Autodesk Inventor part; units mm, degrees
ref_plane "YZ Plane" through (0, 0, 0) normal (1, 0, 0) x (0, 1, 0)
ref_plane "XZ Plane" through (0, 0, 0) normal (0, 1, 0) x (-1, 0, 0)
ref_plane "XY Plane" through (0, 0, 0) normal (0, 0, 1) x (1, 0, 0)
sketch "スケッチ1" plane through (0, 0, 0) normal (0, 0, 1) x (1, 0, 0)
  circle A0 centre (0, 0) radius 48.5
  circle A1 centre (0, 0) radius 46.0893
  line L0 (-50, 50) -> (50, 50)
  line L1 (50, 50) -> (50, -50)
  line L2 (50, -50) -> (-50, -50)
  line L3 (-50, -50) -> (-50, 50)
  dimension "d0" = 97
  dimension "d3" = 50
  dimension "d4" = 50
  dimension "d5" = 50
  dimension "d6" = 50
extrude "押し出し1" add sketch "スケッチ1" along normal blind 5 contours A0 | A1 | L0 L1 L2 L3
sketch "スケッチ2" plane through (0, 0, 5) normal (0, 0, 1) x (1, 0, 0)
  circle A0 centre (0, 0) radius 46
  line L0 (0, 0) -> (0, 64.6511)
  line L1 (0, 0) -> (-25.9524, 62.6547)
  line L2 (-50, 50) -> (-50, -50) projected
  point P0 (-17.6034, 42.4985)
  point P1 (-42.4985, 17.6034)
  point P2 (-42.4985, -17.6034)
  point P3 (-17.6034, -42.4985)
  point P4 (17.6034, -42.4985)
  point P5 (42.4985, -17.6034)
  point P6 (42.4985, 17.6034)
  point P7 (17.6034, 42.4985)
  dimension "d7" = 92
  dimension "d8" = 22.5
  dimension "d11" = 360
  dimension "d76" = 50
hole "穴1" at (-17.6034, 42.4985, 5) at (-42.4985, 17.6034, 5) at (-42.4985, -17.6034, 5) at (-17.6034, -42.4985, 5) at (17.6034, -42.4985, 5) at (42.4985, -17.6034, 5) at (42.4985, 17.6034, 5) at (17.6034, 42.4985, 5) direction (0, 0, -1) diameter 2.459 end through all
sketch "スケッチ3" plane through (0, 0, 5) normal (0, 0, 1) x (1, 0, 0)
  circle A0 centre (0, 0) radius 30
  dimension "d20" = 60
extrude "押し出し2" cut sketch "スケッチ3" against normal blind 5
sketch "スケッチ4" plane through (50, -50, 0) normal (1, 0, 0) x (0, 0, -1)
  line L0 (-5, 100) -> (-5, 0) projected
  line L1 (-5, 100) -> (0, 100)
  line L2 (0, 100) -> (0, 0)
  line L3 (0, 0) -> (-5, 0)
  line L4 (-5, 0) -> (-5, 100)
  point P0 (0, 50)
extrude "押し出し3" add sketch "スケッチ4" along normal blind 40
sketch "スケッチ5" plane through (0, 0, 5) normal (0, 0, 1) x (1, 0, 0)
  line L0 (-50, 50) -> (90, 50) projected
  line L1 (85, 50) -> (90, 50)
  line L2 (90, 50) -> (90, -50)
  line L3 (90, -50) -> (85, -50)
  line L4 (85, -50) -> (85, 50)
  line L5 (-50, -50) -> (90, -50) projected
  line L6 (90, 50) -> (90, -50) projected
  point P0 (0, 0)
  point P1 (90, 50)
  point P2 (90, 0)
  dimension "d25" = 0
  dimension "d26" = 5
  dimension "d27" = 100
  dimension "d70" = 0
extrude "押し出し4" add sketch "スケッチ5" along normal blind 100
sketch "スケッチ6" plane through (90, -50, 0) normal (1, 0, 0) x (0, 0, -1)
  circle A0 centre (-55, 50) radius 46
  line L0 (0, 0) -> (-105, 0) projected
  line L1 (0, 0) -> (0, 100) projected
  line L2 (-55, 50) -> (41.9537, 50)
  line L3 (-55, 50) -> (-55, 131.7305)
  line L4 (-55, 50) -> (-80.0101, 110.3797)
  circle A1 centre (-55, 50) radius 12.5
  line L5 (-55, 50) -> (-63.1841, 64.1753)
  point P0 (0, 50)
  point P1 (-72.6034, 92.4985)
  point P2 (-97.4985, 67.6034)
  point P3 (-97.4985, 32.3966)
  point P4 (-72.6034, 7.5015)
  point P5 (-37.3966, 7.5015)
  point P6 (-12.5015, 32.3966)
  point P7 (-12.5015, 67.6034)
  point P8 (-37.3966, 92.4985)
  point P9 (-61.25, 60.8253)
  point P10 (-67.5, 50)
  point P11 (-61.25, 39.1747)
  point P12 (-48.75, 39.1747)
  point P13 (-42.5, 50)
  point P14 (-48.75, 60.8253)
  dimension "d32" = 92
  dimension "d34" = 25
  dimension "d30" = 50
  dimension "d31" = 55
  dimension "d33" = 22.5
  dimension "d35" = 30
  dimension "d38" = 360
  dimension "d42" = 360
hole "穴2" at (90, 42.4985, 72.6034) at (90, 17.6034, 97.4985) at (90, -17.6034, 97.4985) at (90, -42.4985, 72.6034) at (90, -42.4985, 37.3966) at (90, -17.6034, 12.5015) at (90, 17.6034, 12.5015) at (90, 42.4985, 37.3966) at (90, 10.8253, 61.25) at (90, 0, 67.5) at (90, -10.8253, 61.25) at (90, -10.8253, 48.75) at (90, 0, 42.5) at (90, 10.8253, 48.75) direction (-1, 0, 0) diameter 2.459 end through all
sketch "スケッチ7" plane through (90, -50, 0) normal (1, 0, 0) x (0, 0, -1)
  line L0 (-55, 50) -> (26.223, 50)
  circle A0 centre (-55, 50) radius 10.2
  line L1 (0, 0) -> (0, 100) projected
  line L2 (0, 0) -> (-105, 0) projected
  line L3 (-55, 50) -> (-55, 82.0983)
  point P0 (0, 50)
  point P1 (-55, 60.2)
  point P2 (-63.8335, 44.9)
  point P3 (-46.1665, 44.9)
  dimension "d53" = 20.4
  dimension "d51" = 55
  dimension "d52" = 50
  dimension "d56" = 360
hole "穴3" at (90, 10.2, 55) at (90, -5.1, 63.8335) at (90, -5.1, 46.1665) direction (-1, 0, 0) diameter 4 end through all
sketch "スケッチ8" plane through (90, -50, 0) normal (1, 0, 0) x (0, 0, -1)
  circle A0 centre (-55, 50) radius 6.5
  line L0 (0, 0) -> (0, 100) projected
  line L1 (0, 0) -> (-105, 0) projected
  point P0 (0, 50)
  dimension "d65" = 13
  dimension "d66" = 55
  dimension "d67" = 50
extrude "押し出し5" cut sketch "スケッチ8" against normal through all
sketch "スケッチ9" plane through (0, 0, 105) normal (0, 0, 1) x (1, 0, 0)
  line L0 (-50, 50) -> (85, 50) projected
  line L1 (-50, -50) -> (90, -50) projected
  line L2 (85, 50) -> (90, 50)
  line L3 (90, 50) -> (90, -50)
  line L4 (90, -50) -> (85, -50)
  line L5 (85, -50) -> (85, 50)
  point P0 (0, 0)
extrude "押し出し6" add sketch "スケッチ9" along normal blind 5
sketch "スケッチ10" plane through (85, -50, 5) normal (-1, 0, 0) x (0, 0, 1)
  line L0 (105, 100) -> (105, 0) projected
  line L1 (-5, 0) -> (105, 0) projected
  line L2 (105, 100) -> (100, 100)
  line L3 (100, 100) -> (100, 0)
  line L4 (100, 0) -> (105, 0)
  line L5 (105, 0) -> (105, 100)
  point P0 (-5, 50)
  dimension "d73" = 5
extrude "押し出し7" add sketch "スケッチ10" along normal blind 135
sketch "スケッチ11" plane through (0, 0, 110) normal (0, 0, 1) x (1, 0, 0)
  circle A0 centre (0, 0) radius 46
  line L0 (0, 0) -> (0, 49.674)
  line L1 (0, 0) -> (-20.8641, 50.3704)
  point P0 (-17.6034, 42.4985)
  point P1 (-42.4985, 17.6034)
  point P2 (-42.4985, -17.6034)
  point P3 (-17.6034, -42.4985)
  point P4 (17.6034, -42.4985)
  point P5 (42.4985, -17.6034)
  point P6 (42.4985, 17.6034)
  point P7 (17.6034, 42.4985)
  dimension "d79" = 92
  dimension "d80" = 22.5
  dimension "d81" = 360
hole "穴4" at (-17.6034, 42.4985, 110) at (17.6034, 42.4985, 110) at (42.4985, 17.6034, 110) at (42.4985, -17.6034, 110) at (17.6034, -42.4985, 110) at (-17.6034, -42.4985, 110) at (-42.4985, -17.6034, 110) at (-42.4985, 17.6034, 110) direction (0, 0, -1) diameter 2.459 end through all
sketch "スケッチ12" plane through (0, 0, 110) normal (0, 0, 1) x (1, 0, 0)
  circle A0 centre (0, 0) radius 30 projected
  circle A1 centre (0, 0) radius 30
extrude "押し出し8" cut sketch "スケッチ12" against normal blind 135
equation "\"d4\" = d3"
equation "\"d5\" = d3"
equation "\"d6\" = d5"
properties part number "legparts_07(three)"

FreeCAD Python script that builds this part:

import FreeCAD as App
import Part
import Sketcher
from FreeCAD import Vector


def add_polygon(sketch, points):
    """Adds a closed chain of lines whose ends are joined by coincident constraints."""
    first, n = sketch.GeometryCount, len(points)
    for a, b in zip(points, points[1:] + points[:1]):
        sketch.addGeometry(Part.LineSegment(App.Vector(*a, 0), App.Vector(*b, 0)), False)
    for i in range(n):
        sketch.addConstraint(Sketcher.Constraint("Coincident", first + i, 2, first + (i + 1) % n, 1))

doc = App.newDocument("Part")
body = doc.addObject("PartDesign::Body", "Body")

# Sketch on XY plane
sketch1 = doc.addObject("Sketcher::SketchObject", "Sketch")
body.addObject(sketch1)
sketch1.AttachmentSupport = (doc.XY_Plane, [""])
sketch1.MapMode = "FlatFace"
add_polygon(sketch1, [(50, 50), (-50, 50), (-50, -50), (50, -50)])  # lines 0-3
sketch1.addConstraint(Sketcher.Constraint("Horizontal", 0))
sketch1.addConstraint(Sketcher.Constraint("Vertical", 1))
sketch1.addConstraint(Sketcher.Constraint("Horizontal", 2))
sketch1.addConstraint(Sketcher.Constraint("Vertical", 3))
sketch1.addConstraint(Sketcher.Constraint("Symmetric", 0, 2, 2, 2, -1, 1))
sketch1.addConstraint(Sketcher.Constraint("Equal", 2, 1))
sketch1.addConstraint(Sketcher.Constraint("DistanceX", 0, 2, -1, 1, 50.0))
pad1 = doc.addObject("PartDesign::Pad", "Pad")
body.addObject(pad1)
pad1.Profile = sketch1
pad1.Length = 5

# Sketch on XY plane
sketch2 = doc.addObject("Sketcher::SketchObject", "Sketch001")
body.addObject(sketch2)
sketch2.AttachmentSupport = (doc.XY_Plane, [""])
sketch2.MapMode = "FlatFace"
sketch2.AttachmentOffset = App.Placement(Vector(0, 0, 5), App.Rotation())
sketch2.addGeometry(Part.Circle(Vector(-17.6034, 42.4985, 0), Vector(0, 0, 1), 1.2295), False)
sketch2.addGeometry(Part.Circle(Vector(-42.4985, 17.6034, 0), Vector(0, 0, 1), 1.2295), False)
sketch2.addGeometry(Part.Circle(Vector(-42.4985, -17.6034, 0), Vector(0, 0, 1), 1.2295), False)
sketch2.addGeometry(Part.Circle(Vector(-17.6034, -42.4985, 0), Vector(0, 0, 1), 1.2295), False)
sketch2.addGeometry(Part.Circle(Vector(17.6034, -42.4985, 0), Vector(0, 0, 1), 1.2295), False)
sketch2.addGeometry(Part.Circle(Vector(42.4985, -17.6034, 0), Vector(0, 0, 1), 1.2295), False)
sketch2.addGeometry(Part.Circle(Vector(42.4985, 17.6034, 0), Vector(0, 0, 1), 1.2295), False)
sketch2.addGeometry(Part.Circle(Vector(17.6034, 42.4985, 0), Vector(0, 0, 1), 1.2295), False)
sketch2.addConstraint(Sketcher.Constraint("Equal", 0, 1))
sketch2.addConstraint(Sketcher.Constraint("Equal", 1, 2))
sketch2.addConstraint(Sketcher.Constraint("Equal", 2, 3))
sketch2.addConstraint(Sketcher.Constraint("Equal", 3, 4))
sketch2.addConstraint(Sketcher.Constraint("Equal", 4, 5))
sketch2.addConstraint(Sketcher.Constraint("Equal", 5, 6))
sketch2.addConstraint(Sketcher.Constraint("Equal", 6, 7))
sketch2.addConstraint(Sketcher.Constraint("Symmetric", 0, 3, 4, 3, -1, 1))
sketch2.addConstraint(Sketcher.Constraint("Symmetric", 1, 3, 5, 3, -1, 1))
sketch2.addConstraint(Sketcher.Constraint("Symmetric", 2, 3, 6, 3, -1, 1))
sketch2.addConstraint(Sketcher.Constraint("Symmetric", 3, 3, 7, 3, -1, 1))
sketch2.addConstraint(Sketcher.Constraint("Symmetric", 3, 3, 4, 3, -2))
sketch2.addConstraint(Sketcher.Constraint("Symmetric", 2, 3, 5, 3, -2))
sketch2.addConstraint(Sketcher.Constraint("Diameter", 0, 2.459))
sketch2.addConstraint(Sketcher.Constraint("DistanceX", 1, 3, 0, 3, 24.895))
sketch2.addConstraint(Sketcher.Constraint("DistanceY", 1, 3, 0, 3, 24.895))
sketch2.addConstraint(Sketcher.Constraint("DistanceY", 2, 3, 0, 3, 60.102))
sketch2.addConstraint(Sketcher.Constraint("DistanceX", 2, 3, 4, 3, 60.102))
doc.recompute()
hole = doc.addObject("PartDesign::Hole", "Hole")
body.addObject(hole)
hole.Profile = sketch2
hole.ThreadType = "None"
hole.Diameter = 2.459
hole.DepthType = "ThroughAll"

# Sketch on XY plane
sketch3 = doc.addObject("Sketcher::SketchObject", "Sketch002")
body.addObject(sketch3)
sketch3.AttachmentSupport = (doc.XY_Plane, [""])
sketch3.MapMode = "FlatFace"
sketch3.AttachmentOffset = App.Placement(Vector(0, 0, 5), App.Rotation())
sketch3.addGeometry(Part.Circle(Vector(0, 0, 0), Vector(0, 0, 1), 30), False)
sketch3.addConstraint(Sketcher.Constraint("Coincident", 0, 3, -1, 1))
sketch3.addConstraint(Sketcher.Constraint("Diameter", 0, 60.0))
pocket1 = doc.addObject("PartDesign::Pocket", "Pocket")
body.addObject(pocket1)
pocket1.Profile = sketch3
pocket1.Length = 5

# Sketch on YZ plane
sketch4 = doc.addObject("Sketcher::SketchObject", "Sketch003")
body.addObject(sketch4)
sketch4.AttachmentSupport = (doc.YZ_Plane, [""])
sketch4.MapMode = "FlatFace"
sketch4.AttachmentOffset = App.Placement(Vector(0, 0, 50), App.Rotation())
add_polygon(sketch4, [(50, 0), (50, 5), (-50, 5), (-50, 0)])  # lines 0-3
sketch4.addConstraint(Sketcher.Constraint("Vertical", 0))
sketch4.addConstraint(Sketcher.Constraint("Horizontal", 1))
sketch4.addConstraint(Sketcher.Constraint("Vertical", 2))
sketch4.addConstraint(Sketcher.Constraint("Horizontal", 3))
sketch4.addConstraint(Sketcher.Constraint("Symmetric", 2, 2, 3, 2, -1, 1))
sketch4.addConstraint(Sketcher.Constraint("DistanceX", 1, 2, 1, 1, 100.0))
sketch4.addConstraint(Sketcher.Constraint("DistanceY", 0, 1, 0, 2, 5.0))
pad2 = doc.addObject("PartDesign::Pad", "Pad001")
body.addObject(pad2)
pad2.Profile = sketch4
pad2.Length = 40

# Sketch on XY plane
sketch5 = doc.addObject("Sketcher::SketchObject", "Sketch004")
body.addObject(sketch5)
sketch5.AttachmentSupport = (doc.XY_Plane, [""])
sketch5.MapMode = "FlatFace"
sketch5.AttachmentOffset = App.Placement(Vector(0, 0, 5), App.Rotation())
add_polygon(sketch5, [(90, 50), (85, 50), (85, -50), (90, -50)])  # lines 0-3
sketch5.addConstraint(Sketcher.Constraint("Horizontal", 0))
sketch5.addConstraint(Sketcher.Constraint("Vertical", 1))
sketch5.addConstraint(Sketcher.Constraint("Horizontal", 2))
sketch5.addConstraint(Sketcher.Constraint("Vertical", 3))
sketch5.addConstraint(Sketcher.Constraint("DistanceX", 0, 2, 0, 1, 5.0))
sketch5.addConstraint(Sketcher.Constraint("DistanceY", 1, 2, 1, 1, 100.0))
sketch5.addConstraint(Sketcher.Constraint("DistanceX", -1, 1, 0, 2, 85.0))
sketch5.addConstraint(Sketcher.Constraint("DistanceY", -1, 1, 0, 2, 50.0))
pad3 = doc.addObject("PartDesign::Pad", "Pad002")
body.addObject(pad3)
pad3.Profile = sketch5
pad3.Length = 100

# Sketch on YZ plane
sketch6 = doc.addObject("Sketcher::SketchObject", "Sketch005")
body.addObject(sketch6)
sketch6.AttachmentSupport = (doc.YZ_Plane, [""])
sketch6.MapMode = "FlatFace"
sketch6.AttachmentOffset = App.Placement(Vector(0, 0, 90), App.Rotation())
sketch6.addGeometry(Part.Circle(Vector(42.4985, 72.6034, 0), Vector(0, 0, 1), 1.2295), False)
sketch6.addGeometry(Part.Circle(Vector(17.6034, 97.4985, 0), Vector(0, 0, 1), 1.2295), False)
sketch6.addGeometry(Part.Circle(Vector(-17.6034, 97.4985, 0), Vector(0, 0, 1), 1.2295), False)
sketch6.addGeometry(Part.Circle(Vector(-42.4985, 72.6034, 0), Vector(0, 0, 1), 1.2295), False)
sketch6.addGeometry(Part.Circle(Vector(-42.4985, 37.3966, 0), Vector(0, 0, 1), 1.2295), False)
sketch6.addGeometry(Part.Circle(Vector(-17.6034, 12.5015, 0), Vector(0, 0, 1), 1.2295), False)
sketch6.addGeometry(Part.Circle(Vector(17.6034, 12.5015, 0), Vector(0, 0, 1), 1.2295), False)
sketch6.addGeometry(Part.Circle(Vector(42.4985, 37.3966, 0), Vector(0, 0, 1), 1.2295), False)
sketch6.addGeometry(Part.Circle(Vector(10.8253, 61.25, 0), Vector(0, 0, 1), 1.2295), False)
sketch6.addGeometry(Part.Circle(Vector(0, 67.5, 0), Vector(0, 0, 1), 1.2295), False)
sketch6.addGeometry(Part.Circle(Vector(-10.8253, 61.25, 0), Vector(0, 0, 1), 1.2295), False)
sketch6.addGeometry(Part.Circle(Vector(-10.8253, 48.75, 0), Vector(0, 0, 1), 1.2295), False)
sketch6.addGeometry(Part.Circle(Vector(0, 42.5, 0), Vector(0, 0, 1), 1.2295), False)
sketch6.addGeometry(Part.Circle(Vector(10.8253, 48.75, 0), Vector(0, 0, 1), 1.2295), False)
sketch6.addConstraint(Sketcher.Constraint("Equal", 0, 1))
sketch6.addConstraint(Sketcher.Constraint("Equal", 1, 2))
sketch6.addConstraint(Sketcher.Constraint("Equal", 2, 3))
sketch6.addConstraint(Sketcher.Constraint("Equal", 3, 4))
sketch6.addConstraint(Sketcher.Constraint("Equal", 4, 5))
sketch6.addConstraint(Sketcher.Constraint("Equal", 5, 6))
sketch6.addConstraint(Sketcher.Constraint("Equal", 6, 7))
sketch6.addConstraint(Sketcher.Constraint("Equal", 7, 8))
sketch6.addConstraint(Sketcher.Constraint("Equal", 8, 9))
sketch6.addConstraint(Sketcher.Constraint("Equal", 9, 10))
sketch6.addConstraint(Sketcher.Constraint("Equal", 10, 11))
sketch6.addConstraint(Sketcher.Constraint("Equal", 11, 12))
sketch6.addConstraint(Sketcher.Constraint("Equal", 12, 13))
sketch6.addConstraint(Sketcher.Constraint("Symmetric", 1, 3, 2, 3, -2))
sketch6.addConstraint(Sketcher.Constraint("Symmetric", 0, 3, 3, 3, -2))
sketch6.addConstraint(Sketcher.Constraint("Symmetric", 5, 3, 6, 3, -2))
sketch6.addConstraint(Sketcher.Constraint("Symmetric", 4, 3, 7, 3, -2))
sketch6.addConstraint(Sketcher.Constraint("Symmetric", 8, 3, 10, 3, -2))
sketch6.addConstraint(Sketcher.Constraint("Symmetric", 11, 3, 13, 3, -2))
sketch6.addConstraint(Sketcher.Constraint("PointOnObject", 9, 3, -2))
sketch6.addConstraint(Sketcher.Constraint("PointOnObject", 12, 3, -2))
sketch6.addConstraint(Sketcher.Constraint("Vertical", 3, 3, 4, 3))
sketch6.addConstraint(Sketcher.Constraint("Vertical", 2, 3, 5, 3))
sketch6.addConstraint(Sketcher.Constraint("Vertical", 10, 3, 11, 3))
sketch6.addConstraint(Sketcher.Constraint("Diameter", 0, 2.459))
sketch6.addConstraint(Sketcher.Constraint("DistanceY", 12, 3, 9, 3, 25.0))
sketch6.addConstraint(Sketcher.Constraint("DistanceY", -1, 1, 9, 3, 67.5))
sketch6.addConstraint(Sketcher.Constraint("DistanceY", 11, 3, 10, 3, 12.5))
sketch6.addConstraint(Sketcher.Constraint("DistanceY", -1, 1, 8, 3, 61.25))
sketch6.addConstraint(Sketcher.Constraint("DistanceX", 1, 3, 0, 3, 24.895))
sketch6.addConstraint(Sketcher.Constraint("DistanceY", 0, 3, 1, 3, 24.895))
sketch6.addConstraint(Sketcher.Constraint("DistanceX", 2, 3, 0, 3, 60.102))
sketch6.addConstraint(Sketcher.Constraint("DistanceY", 4, 3, 2, 3, 60.102))
sketch6.addConstraint(Sketcher.Constraint("DistanceY", 5, 3, 4, 3, 24.895))
sketch6.addConstraint(Sketcher.Constraint("DistanceX", 8, 3, 1, 3, 6.778))
sketch6.addConstraint(Sketcher.Constraint("DistanceY", -1, 1, 0, 3, 72.6034))
doc.recompute()
hole2 = doc.addObject("PartDesign::Hole", "Hole001")
body.addObject(hole2)
hole2.Profile = sketch6
hole2.ThreadType = "None"
hole2.Diameter = 2.459
hole2.DepthType = "ThroughAll"

# Sketch on YZ plane
sketch7 = doc.addObject("Sketcher::SketchObject", "Sketch006")
body.addObject(sketch7)
sketch7.AttachmentSupport = (doc.YZ_Plane, [""])
sketch7.MapMode = "FlatFace"
sketch7.AttachmentOffset = App.Placement(Vector(0, 0, 90), App.Rotation())
sketch7.addGeometry(Part.Circle(Vector(10.2, 55, 0), Vector(0, 0, 1), 2), False)
sketch7.addGeometry(Part.Circle(Vector(-5.1, 63.8335, 0), Vector(0, 0, 1), 2), False)
sketch7.addGeometry(Part.Circle(Vector(-5.1, 46.1665, 0), Vector(0, 0, 1), 2), False)
sketch7.addConstraint(Sketcher.Constraint("Equal", 0, 1))
sketch7.addConstraint(Sketcher.Constraint("Equal", 1, 2))
sketch7.addConstraint(Sketcher.Constraint("Vertical", 1, 3, 2, 3))
sketch7.addConstraint(Sketcher.Constraint("Diameter", 0, 4.0))
sketch7.addConstraint(Sketcher.Constraint("DistanceY", -1, 1, 0, 3, 55.0))
sketch7.addConstraint(Sketcher.Constraint("DistanceX", -1, 1, 0, 3, 10.2))
sketch7.addConstraint(Sketcher.Constraint("DistanceX", 1, 3, -1, 1, 5.1))
sketch7.addConstraint(Sketcher.Constraint("DistanceY", 2, 3, 1, 3, 17.667))
sketch7.addConstraint(Sketcher.Constraint("DistanceY", -1, 1, 1, 3, 63.8335))
doc.recompute()
hole3 = doc.addObject("PartDesign::Hole", "Hole002")
body.addObject(hole3)
hole3.Profile = sketch7
hole3.ThreadType = "None"
hole3.Diameter = 4
hole3.DepthType = "ThroughAll"

# Sketch on YZ plane
sketch8 = doc.addObject("Sketcher::SketchObject", "Sketch007")
body.addObject(sketch8)
sketch8.AttachmentSupport = (doc.YZ_Plane, [""])
sketch8.MapMode = "FlatFace"
sketch8.AttachmentOffset = App.Placement(Vector(0, 0, 90), App.Rotation())
sketch8.addGeometry(Part.Circle(Vector(0, 55, 0), Vector(0, 0, 1), 6.5), False)
sketch8.addConstraint(Sketcher.Constraint("PointOnObject", 0, 3, -2))
sketch8.addConstraint(Sketcher.Constraint("Diameter", 0, 13.0))
sketch8.addConstraint(Sketcher.Constraint("DistanceY", -1, 1, 0, 3, 55.0))
pocket2 = doc.addObject("PartDesign::Pocket", "Pocket001")
body.addObject(pocket2)
pocket2.Profile = sketch8
pocket2.Type = "ThroughAll"

# Sketch on XY plane
sketch9 = doc.addObject("Sketcher::SketchObject", "Sketch008")
body.addObject(sketch9)
sketch9.AttachmentSupport = (doc.XY_Plane, [""])
sketch9.MapMode = "FlatFace"
sketch9.AttachmentOffset = App.Placement(Vector(0, 0, 105), App.Rotation())
add_polygon(sketch9, [(85, 50), (85, -50), (90, -50), (90, 50)])  # lines 0-3
sketch9.addConstraint(Sketcher.Constraint("Vertical", 0))
sketch9.addConstraint(Sketcher.Constraint("Horizontal", 1))
sketch9.addConstraint(Sketcher.Constraint("Vertical", 2))
sketch9.addConstraint(Sketcher.Constraint("Horizontal", 3))
sketch9.addConstraint(Sketcher.Constraint("DistanceX", 1, 1, 1, 2, 5.0))
sketch9.addConstraint(Sketcher.Constraint("DistanceY", 0, 2, 0, 1, 100.0))
sketch9.addConstraint(Sketcher.Constraint("DistanceX", -1, 1, 0, 2, 85.0))
sketch9.addConstraint(Sketcher.Constraint("DistanceY", 0, 2, -1, 1, 50.0))
pad4 = doc.addObject("PartDesign::Pad", "Pad003")
body.addObject(pad4)
pad4.Profile = sketch9
pad4.Length = 5

# Sketch on YZ plane
sketch10 = doc.addObject("Sketcher::SketchObject", "Sketch009")
body.addObject(sketch10)
sketch10.AttachmentSupport = (doc.YZ_Plane, [""])
sketch10.MapMode = "FlatFace"
sketch10.AttachmentOffset = App.Placement(Vector(0, 0, 85), App.Rotation())
add_polygon(sketch10, [(-50, 110), (50, 110), (50, 105), (-50, 105)])  # lines 0-3
sketch10.addConstraint(Sketcher.Constraint("Horizontal", 0))
sketch10.addConstraint(Sketcher.Constraint("Vertical", 1))
sketch10.addConstraint(Sketcher.Constraint("Horizontal", 2))
sketch10.addConstraint(Sketcher.Constraint("Vertical", 3))
sketch10.addConstraint(Sketcher.Constraint("DistanceY", 1, 2, 1, 1, 5.0))
sketch10.addConstraint(Sketcher.Constraint("DistanceX", 0, 1, 0, 2, 100.0))
sketch10.addConstraint(Sketcher.Constraint("DistanceX", -1, 1, 0, 2, 50.0))
sketch10.addConstraint(Sketcher.Constraint("DistanceY", -1, 1, 0, 2, 110.0))
pad5 = doc.addObject("PartDesign::Pad", "Pad004")
body.addObject(pad5)
pad5.Profile = sketch10
pad5.Length = 135
pad5.Reversed = True

# Sketch on XY plane
sketch11 = doc.addObject("Sketcher::SketchObject", "Sketch010")
body.addObject(sketch11)
sketch11.AttachmentSupport = (doc.XY_Plane, [""])
sketch11.MapMode = "FlatFace"
sketch11.AttachmentOffset = App.Placement(Vector(0, 0, 110), App.Rotation())
sketch11.addGeometry(Part.Circle(Vector(-17.6034, 42.4985, 0), Vector(0, 0, 1), 1.2295), False)
sketch11.addGeometry(Part.Circle(Vector(17.6034, 42.4985, 0), Vector(0, 0, 1), 1.2295), False)
sketch11.addGeometry(Part.Circle(Vector(42.4985, 17.6034, 0), Vector(0, 0, 1), 1.2295), False)
sketch11.addGeometry(Part.Circle(Vector(42.4985, -17.6034, 0), Vector(0, 0, 1), 1.2295), False)
sketch11.addGeometry(Part.Circle(Vector(17.6034, -42.4985, 0), Vector(0, 0, 1), 1.2295), False)
sketch11.addGeometry(Part.Circle(Vector(-17.6034, -42.4985, 0), Vector(0, 0, 1), 1.2295), False)
sketch11.addGeometry(Part.Circle(Vector(-42.4985, -17.6034, 0), Vector(0, 0, 1), 1.2295), False)
sketch11.addGeometry(Part.Circle(Vector(-42.4985, 17.6034, 0), Vector(0, 0, 1), 1.2295), False)
sketch11.addConstraint(Sketcher.Constraint("Equal", 0, 1))
sketch11.addConstraint(Sketcher.Constraint("Equal", 1, 2))
sketch11.addConstraint(Sketcher.Constraint("Equal", 2, 3))
sketch11.addConstraint(Sketcher.Constraint("Equal", 3, 4))
sketch11.addConstraint(Sketcher.Constraint("Equal", 4, 5))
sketch11.addConstraint(Sketcher.Constraint("Equal", 5, 6))
sketch11.addConstraint(Sketcher.Constraint("Equal", 6, 7))
sketch11.addConstraint(Sketcher.Constraint("Symmetric", 0, 3, 4, 3, -1, 1))
sketch11.addConstraint(Sketcher.Constraint("Symmetric", 1, 3, 5, 3, -1, 1))
sketch11.addConstraint(Sketcher.Constraint("Symmetric", 2, 3, 6, 3, -1, 1))
sketch11.addConstraint(Sketcher.Constraint("Symmetric", 3, 3, 7, 3, -1, 1))
sketch11.addConstraint(Sketcher.Constraint("Symmetric", 0, 3, 1, 3, -2))
sketch11.addConstraint(Sketcher.Constraint("Symmetric", 3, 3, 6, 3, -2))
sketch11.addConstraint(Sketcher.Constraint("Diameter", 0, 2.459))
sketch11.addConstraint(Sketcher.Constraint("DistanceX", 1, 3, 2, 3, 24.895))
sketch11.addConstraint(Sketcher.Constraint("DistanceY", 2, 3, 1, 3, 24.895))
sketch11.addConstraint(Sketcher.Constraint("DistanceX", 0, 3, 2, 3, 60.102))
sketch11.addConstraint(Sketcher.Constraint("DistanceY", 3, 3, 1, 3, 60.102))
doc.recompute()
hole4 = doc.addObject("PartDesign::Hole", "Hole003")
body.addObject(hole4)
hole4.Profile = sketch11
hole4.ThreadType = "None"
hole4.Diameter = 2.459
hole4.DepthType = "ThroughAll"

# Sketch on XY plane
sketch12 = doc.addObject("Sketcher::SketchObject", "Sketch011")
body.addObject(sketch12)
sketch12.AttachmentSupport = (doc.XY_Plane, [""])
sketch12.MapMode = "FlatFace"
sketch12.AttachmentOffset = App.Placement(Vector(0, 0, 110), App.Rotation())
sketch12.addGeometry(Part.Circle(Vector(0, 0, 0), Vector(0, 0, 1), 30), False)
sketch12.addConstraint(Sketcher.Constraint("Coincident", 0, 3, -1, 1))
sketch12.addConstraint(Sketcher.Constraint("Diameter", 0, 60.0))
pocket3 = doc.addObject("PartDesign::Pocket", "Pocket002")
body.addObject(pocket3)
pocket3.Profile = sketch12
pocket3.Length = 135

doc.recompute()
